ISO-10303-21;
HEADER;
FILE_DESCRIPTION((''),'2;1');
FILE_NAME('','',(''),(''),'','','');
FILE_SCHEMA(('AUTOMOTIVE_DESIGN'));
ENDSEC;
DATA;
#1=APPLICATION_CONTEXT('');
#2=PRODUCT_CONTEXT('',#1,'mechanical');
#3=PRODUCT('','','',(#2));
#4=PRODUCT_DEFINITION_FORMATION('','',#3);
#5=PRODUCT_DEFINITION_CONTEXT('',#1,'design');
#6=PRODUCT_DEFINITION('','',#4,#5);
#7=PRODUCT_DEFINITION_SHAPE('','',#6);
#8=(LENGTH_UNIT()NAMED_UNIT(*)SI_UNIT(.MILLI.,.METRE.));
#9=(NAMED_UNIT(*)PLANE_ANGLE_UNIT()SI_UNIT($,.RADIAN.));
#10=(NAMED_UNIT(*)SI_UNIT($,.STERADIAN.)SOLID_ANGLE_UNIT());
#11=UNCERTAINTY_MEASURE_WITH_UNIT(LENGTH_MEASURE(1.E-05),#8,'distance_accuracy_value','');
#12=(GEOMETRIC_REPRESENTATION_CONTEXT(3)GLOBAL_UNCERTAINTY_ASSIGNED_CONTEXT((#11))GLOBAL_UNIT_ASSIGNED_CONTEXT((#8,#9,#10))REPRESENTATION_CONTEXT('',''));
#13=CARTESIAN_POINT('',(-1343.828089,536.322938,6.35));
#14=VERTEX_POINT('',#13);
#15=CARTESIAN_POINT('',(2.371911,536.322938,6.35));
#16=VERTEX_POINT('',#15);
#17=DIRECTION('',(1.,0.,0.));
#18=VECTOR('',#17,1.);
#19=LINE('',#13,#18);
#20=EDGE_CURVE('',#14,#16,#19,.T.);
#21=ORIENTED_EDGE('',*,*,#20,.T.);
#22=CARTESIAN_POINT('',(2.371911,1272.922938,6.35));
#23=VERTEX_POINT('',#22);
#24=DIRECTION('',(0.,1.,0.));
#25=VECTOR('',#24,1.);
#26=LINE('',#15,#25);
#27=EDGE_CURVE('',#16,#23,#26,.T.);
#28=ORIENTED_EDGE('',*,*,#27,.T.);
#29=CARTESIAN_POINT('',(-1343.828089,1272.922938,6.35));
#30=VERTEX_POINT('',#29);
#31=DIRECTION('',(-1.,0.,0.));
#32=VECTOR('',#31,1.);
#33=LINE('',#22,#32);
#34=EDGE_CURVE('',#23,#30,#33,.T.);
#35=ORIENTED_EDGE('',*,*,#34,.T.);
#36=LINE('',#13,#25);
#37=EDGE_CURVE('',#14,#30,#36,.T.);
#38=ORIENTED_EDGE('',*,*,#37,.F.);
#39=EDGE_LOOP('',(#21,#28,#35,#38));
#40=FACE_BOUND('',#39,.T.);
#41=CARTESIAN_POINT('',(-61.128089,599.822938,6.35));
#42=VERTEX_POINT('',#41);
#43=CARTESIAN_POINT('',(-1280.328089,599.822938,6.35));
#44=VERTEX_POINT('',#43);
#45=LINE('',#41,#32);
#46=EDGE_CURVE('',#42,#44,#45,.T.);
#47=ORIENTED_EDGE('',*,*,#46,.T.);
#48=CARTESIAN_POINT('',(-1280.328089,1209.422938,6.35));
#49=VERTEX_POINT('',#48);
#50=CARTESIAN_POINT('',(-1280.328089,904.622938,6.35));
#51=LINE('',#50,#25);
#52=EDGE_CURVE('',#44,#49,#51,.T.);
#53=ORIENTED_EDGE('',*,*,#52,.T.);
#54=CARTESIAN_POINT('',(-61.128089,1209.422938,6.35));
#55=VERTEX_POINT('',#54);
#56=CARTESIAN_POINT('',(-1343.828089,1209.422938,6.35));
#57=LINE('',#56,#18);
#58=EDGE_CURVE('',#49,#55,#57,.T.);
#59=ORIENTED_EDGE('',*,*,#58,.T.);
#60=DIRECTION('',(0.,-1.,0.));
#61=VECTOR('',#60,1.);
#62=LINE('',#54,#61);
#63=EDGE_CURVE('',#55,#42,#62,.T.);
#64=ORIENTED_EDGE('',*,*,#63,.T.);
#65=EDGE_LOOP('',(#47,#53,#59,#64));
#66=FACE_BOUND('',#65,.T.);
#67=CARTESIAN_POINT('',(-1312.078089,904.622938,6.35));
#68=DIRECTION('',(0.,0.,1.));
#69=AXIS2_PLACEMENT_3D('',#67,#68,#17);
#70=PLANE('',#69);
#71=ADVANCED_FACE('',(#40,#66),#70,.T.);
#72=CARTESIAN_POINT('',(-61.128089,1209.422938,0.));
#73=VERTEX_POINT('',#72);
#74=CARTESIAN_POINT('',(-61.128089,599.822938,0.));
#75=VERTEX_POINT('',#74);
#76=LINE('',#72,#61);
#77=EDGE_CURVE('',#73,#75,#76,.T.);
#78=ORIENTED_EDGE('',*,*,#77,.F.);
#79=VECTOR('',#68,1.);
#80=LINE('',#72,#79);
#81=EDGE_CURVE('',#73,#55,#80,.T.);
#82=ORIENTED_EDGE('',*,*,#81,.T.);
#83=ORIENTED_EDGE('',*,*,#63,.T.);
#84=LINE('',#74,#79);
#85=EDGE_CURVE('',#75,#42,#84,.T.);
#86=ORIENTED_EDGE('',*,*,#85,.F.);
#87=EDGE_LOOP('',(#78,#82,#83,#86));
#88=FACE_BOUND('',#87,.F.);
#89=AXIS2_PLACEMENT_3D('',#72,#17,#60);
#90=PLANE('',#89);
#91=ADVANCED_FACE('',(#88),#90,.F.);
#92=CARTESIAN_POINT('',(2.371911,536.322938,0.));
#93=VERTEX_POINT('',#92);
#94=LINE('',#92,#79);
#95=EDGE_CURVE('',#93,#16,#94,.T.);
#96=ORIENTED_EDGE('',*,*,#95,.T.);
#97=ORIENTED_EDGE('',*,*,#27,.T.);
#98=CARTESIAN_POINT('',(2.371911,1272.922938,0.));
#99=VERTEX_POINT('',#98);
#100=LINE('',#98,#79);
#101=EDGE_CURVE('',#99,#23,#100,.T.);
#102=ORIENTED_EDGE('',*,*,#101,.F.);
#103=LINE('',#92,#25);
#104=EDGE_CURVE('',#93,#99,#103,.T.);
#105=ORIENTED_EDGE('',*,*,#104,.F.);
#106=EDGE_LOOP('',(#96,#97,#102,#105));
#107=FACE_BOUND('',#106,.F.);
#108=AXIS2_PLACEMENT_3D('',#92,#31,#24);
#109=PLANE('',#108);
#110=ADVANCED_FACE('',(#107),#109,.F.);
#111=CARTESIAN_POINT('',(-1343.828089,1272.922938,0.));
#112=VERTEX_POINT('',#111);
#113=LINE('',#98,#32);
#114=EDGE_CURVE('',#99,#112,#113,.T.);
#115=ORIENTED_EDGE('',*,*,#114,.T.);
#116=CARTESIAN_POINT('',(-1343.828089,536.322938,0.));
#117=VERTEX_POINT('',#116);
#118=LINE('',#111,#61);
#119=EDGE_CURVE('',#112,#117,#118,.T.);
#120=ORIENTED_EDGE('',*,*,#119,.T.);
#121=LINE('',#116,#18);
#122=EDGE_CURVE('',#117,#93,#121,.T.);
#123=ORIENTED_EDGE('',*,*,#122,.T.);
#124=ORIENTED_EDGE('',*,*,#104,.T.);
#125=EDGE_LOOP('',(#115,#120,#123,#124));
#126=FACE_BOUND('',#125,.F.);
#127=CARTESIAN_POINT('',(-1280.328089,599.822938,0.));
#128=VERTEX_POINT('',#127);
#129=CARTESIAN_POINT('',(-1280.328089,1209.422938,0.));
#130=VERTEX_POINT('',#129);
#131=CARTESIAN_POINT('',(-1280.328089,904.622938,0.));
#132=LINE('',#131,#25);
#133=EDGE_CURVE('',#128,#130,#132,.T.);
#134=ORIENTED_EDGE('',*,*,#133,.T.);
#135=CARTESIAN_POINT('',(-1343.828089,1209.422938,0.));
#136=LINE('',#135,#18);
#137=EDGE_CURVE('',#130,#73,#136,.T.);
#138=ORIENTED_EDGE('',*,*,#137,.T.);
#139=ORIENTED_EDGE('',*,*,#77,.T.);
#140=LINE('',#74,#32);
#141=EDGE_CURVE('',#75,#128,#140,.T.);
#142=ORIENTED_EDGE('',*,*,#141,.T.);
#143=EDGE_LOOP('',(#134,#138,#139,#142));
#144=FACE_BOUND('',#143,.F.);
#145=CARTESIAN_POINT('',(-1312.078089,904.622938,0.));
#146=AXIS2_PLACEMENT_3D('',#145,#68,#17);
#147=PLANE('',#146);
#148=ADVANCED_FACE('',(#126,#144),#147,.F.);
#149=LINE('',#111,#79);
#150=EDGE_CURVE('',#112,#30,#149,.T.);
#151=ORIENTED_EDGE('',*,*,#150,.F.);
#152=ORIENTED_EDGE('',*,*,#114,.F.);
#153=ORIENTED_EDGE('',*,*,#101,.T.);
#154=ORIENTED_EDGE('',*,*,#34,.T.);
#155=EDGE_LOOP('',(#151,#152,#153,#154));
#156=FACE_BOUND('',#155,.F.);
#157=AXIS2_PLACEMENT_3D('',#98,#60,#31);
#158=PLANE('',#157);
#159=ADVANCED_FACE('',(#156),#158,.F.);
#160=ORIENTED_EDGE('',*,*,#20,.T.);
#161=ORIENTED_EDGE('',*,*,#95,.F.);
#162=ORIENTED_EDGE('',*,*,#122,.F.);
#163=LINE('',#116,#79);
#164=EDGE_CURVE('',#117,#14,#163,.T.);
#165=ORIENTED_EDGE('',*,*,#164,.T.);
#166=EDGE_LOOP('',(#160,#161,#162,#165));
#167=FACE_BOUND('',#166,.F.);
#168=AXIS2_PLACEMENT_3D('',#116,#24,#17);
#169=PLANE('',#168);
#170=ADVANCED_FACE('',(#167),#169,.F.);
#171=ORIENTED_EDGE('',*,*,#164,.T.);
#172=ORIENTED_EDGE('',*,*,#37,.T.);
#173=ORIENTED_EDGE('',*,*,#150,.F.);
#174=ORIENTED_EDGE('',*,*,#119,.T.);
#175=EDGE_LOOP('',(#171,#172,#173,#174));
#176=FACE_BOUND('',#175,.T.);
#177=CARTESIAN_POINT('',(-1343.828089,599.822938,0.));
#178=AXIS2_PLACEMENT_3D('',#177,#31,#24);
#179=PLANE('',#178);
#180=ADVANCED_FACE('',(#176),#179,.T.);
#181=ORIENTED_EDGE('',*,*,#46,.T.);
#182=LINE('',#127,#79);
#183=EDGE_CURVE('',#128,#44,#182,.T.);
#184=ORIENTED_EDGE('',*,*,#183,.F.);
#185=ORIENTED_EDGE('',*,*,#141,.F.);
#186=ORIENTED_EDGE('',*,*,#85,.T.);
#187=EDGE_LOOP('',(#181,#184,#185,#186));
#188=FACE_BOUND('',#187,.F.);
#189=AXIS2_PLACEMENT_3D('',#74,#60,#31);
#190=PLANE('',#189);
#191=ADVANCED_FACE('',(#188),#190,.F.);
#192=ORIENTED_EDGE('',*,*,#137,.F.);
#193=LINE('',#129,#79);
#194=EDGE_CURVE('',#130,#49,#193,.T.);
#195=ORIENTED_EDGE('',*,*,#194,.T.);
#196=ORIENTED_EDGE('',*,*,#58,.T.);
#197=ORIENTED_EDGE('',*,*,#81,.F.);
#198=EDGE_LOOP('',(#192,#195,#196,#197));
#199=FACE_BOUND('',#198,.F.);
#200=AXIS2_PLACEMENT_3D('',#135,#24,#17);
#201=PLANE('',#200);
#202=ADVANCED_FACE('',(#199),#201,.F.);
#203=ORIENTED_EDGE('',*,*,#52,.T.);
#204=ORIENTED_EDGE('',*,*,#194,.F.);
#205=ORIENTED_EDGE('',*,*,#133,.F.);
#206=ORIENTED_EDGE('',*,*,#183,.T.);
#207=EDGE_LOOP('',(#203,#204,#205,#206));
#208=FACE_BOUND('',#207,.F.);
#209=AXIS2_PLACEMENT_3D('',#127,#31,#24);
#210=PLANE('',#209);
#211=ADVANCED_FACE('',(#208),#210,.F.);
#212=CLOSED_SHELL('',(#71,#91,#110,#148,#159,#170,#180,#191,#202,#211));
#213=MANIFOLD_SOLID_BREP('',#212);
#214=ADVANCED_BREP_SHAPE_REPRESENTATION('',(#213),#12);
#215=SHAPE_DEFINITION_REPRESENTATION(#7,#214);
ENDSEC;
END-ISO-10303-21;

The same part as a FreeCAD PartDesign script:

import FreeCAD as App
import Part
import Sketcher
from FreeCAD import Vector
Q = App.Units.Quantity


def add_polygon(sketch, points):
    """Adds a closed chain of lines whose ends are joined by coincident constraints."""
    first, n = sketch.GeometryCount, len(points)
    for a, b in zip(points, points[1:] + points[:1]):
        sketch.addGeometry(Part.LineSegment(App.Vector(*a, 0), App.Vector(*b, 0)), False)
    for i in range(n):
        sketch.addConstraint(Sketcher.Constraint("Coincident", first + i, 2, first + (i + 1) % n, 1))

doc = App.newDocument("Part")
body = doc.addObject("PartDesign::Body", "Body")

# Sketch on XY plane
sketch1 = body.newObject("Sketcher::SketchObject", "Sketch")
sketch1.AttachmentSupport = (doc.getObject("XY_Plane"), [""])
sketch1.MapMode = "FlatFace"
add_polygon(sketch1, [(-1344, 1273), (-1344, 1209), (-61, 1209), (-61, 600), (-1344, 600), (-1344, 536), (2, 536), (2, 1273)])  # lines 0-7
sketch1.addConstraint([
    Sketcher.Constraint("Vertical", 0),
    Sketcher.Constraint("Horizontal", 1),
    Sketcher.Constraint("Vertical", 2),
    Sketcher.Constraint("Horizontal", 3),
    Sketcher.Constraint("Vertical", 4),
    Sketcher.Constraint("Horizontal", 5),
    Sketcher.Constraint("Vertical", 6),
    Sketcher.Constraint("Horizontal", 7),
    Sketcher.Constraint("Vertical", 0, 2, 3, 2),
    Sketcher.Constraint("Equal", 0, 4),
    Sketcher.Constraint("DistanceX", 5, 1, 5, 2, Q("53 in")),
    Sketcher.Constraint("DistanceY", 2, 2, 2, 1, Q("24 in")),
    Sketcher.Constraint("DistanceY", 6, 1, 6, 2, Q("29 in")),
    Sketcher.Constraint("DistanceX", 1, 1, 1, 2, Q("50.5 in")),
    Sketcher.Constraint("DistanceX", 0, 2, -1, 1, 1343.828089),
    Sketcher.Constraint("DistanceY", -1, 1, 0, 2, 1209.422938),
])
pad1 = body.newObject("PartDesign::Pad", "Pad")
pad1.Profile = sketch1
pad1.Length = Q("0.25 in")

# Sketch on XY plane
sketch2 = body.newObject("Sketcher::SketchObject", "Sketch001")
sketch2.AttachmentSupport = (doc.getObject("XY_Plane"), [""])
sketch2.MapMode = "FlatFace"
add_polygon(sketch2, [(-1344, 1209), (-1344, 600), (-1280, 600), (-1280, 1209)])  # lines 0-3
sketch2.addConstraint([
    Sketcher.Constraint("Vertical", 0),
    Sketcher.Constraint("Horizontal", 1),
    Sketcher.Constraint("Vertical", 2),
    Sketcher.Constraint("Horizontal", 3),
    Sketcher.Constraint("DistanceY", 0, 2, 0, 1, Q("24 in")),
    Sketcher.Constraint("DistanceX", 1, 1, 1, 2, Q("2.5 in")),
    Sketcher.Constraint("DistanceX", 0, 2, -1, 1, 1343.828089),
    Sketcher.Constraint("DistanceY", -1, 1, 0, 2, 599.822938),
])
pad2 = body.newObject("PartDesign::Pad", "Pad001")
pad2.Profile = sketch2
pad2.Length = Q("0.25 in")

doc.recompute()
